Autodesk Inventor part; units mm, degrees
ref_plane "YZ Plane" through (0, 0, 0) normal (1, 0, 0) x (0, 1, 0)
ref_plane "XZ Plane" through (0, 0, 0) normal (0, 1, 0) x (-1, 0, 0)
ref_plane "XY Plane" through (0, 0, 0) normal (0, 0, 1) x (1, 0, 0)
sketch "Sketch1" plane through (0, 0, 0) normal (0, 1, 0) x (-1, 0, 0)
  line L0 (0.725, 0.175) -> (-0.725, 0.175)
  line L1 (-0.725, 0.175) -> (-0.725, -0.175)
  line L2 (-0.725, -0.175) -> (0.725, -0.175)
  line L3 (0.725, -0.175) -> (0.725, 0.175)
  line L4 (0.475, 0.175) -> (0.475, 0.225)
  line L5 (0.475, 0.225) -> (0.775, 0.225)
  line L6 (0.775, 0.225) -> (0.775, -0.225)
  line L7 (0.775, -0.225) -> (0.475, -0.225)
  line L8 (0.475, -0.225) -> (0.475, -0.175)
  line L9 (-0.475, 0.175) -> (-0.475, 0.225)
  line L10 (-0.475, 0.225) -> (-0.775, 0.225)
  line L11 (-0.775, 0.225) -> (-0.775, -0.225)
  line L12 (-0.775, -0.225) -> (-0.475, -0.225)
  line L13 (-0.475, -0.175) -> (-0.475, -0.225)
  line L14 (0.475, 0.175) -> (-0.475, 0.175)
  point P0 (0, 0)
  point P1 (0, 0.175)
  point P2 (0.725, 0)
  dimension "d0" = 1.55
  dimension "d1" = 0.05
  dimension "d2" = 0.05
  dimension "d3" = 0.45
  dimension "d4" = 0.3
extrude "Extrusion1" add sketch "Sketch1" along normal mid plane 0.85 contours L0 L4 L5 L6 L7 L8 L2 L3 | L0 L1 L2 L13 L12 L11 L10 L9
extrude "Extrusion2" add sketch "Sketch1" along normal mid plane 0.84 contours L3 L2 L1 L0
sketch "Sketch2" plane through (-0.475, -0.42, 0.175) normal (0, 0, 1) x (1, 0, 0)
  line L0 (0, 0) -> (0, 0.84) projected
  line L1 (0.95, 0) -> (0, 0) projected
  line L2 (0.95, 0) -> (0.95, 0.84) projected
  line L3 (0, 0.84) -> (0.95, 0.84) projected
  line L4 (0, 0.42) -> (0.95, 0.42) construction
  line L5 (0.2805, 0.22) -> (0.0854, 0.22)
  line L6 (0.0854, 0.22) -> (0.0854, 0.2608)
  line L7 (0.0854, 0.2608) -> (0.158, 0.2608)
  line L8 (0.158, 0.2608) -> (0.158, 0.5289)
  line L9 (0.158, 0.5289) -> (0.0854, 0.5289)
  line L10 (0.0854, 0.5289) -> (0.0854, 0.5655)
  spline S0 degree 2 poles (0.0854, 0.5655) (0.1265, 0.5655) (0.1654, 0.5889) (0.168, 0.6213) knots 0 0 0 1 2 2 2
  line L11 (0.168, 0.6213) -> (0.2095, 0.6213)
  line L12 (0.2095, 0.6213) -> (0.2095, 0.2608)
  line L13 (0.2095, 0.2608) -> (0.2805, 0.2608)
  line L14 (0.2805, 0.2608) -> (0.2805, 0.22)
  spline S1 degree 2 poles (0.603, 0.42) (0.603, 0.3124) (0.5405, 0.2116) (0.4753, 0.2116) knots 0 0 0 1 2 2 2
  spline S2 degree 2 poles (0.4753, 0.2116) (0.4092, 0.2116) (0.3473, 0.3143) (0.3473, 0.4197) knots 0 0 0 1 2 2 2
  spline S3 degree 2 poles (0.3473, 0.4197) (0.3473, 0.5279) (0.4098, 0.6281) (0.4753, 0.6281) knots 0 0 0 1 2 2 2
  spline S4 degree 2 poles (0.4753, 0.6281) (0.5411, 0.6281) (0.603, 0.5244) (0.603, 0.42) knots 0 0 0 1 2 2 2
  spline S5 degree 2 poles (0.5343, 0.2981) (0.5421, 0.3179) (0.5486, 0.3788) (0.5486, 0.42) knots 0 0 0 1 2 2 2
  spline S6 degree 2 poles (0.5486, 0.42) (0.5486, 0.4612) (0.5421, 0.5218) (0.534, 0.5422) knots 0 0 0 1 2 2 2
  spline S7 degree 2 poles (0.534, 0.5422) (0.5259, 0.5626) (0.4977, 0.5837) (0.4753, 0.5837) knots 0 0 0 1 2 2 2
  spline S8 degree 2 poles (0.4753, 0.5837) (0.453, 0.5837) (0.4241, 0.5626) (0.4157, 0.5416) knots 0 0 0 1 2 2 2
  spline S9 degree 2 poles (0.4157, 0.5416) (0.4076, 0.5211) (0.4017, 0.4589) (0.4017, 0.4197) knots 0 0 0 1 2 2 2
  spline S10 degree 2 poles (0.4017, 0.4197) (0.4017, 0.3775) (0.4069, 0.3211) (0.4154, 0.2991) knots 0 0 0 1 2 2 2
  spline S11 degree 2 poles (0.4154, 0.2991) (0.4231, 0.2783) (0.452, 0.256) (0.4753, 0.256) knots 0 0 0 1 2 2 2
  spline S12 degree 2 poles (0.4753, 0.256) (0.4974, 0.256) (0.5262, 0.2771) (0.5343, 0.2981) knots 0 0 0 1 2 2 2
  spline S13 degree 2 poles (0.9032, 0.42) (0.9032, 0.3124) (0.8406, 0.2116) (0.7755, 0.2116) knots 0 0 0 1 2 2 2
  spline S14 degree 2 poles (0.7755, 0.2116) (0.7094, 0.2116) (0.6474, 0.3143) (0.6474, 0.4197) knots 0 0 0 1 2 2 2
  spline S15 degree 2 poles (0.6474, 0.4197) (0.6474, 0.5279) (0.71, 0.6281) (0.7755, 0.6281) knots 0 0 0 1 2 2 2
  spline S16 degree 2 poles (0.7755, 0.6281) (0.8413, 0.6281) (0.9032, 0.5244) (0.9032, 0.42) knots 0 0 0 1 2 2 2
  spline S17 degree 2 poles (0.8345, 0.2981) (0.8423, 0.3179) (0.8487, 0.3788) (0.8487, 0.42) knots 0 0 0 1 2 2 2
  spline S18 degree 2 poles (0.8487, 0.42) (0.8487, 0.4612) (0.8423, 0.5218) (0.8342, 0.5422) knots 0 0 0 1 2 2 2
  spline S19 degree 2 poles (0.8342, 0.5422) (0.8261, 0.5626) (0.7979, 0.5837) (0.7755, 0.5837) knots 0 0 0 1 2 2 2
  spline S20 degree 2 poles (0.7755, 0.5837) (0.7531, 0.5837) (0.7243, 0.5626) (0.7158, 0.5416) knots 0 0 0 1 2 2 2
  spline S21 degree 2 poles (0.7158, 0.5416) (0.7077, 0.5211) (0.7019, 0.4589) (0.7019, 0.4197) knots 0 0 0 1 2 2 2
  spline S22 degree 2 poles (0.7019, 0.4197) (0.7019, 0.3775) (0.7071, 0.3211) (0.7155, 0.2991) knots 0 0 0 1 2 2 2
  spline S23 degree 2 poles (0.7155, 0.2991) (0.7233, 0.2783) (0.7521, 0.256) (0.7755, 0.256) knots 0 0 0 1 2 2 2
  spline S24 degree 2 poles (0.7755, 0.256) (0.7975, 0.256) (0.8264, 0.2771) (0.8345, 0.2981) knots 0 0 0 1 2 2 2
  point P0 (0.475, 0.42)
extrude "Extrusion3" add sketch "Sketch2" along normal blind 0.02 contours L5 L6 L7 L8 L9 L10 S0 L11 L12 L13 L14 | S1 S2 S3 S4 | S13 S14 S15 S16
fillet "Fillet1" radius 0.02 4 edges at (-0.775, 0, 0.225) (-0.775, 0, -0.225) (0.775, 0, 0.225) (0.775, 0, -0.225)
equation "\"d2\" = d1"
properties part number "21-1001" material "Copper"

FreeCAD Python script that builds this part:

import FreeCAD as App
import Part
import Sketcher

V = App.Vector
Q = App.Units.Quantity


def edges_at(feature, points):
    """Names of the edges that pass closest to the given points."""
    edges = feature.Shape.Edges
    near = lambda p: min(range(len(edges)), key=lambda i: edges[i].distToShape(Part.Vertex(*p))[0])
    return sorted({f"Edge{near(p) + 1}" for p in points})


def add_polygon(sketch, points):
    """Adds a closed chain of lines whose ends are joined by coincident constraints."""
    first, n = sketch.GeometryCount, len(points)
    for a, b in zip(points, points[1:] + points[:1]):
        sketch.addGeometry(Part.LineSegment(App.Vector(*a, 0), App.Vector(*b, 0)), False)
    for i in range(n):
        sketch.addConstraint(Sketcher.Constraint("Coincident", first + i, 2, first + (i + 1) % n, 1))

doc = App.newDocument("Part")
body = doc.addObject("PartDesign::Body", "Body")
body.AllowCompound = True

# Sketch on XZ plane
sketch1 = body.newObject("Sketcher::SketchObject", "Sketch")
sketch1.AttachmentSupport = (doc.getObject("XZ_Plane"), [""])
sketch1.MapMode = "FlatFace"
add_polygon(sketch1, [(-0.47, 0.17), (-0.72, 0.17), (-0.72, -0.17), (-0.47, -0.17), (-0.47, -0.23), (-0.78, -0.23), (-0.78, 0.23), (-0.47, 0.23)])  # lines 0-7
add_polygon(sketch1, [(0.72, 0.17), (0.47, 0.17), (0.47, 0.23), (0.78, 0.23), (0.78, -0.23), (0.47, -0.23), (0.47, -0.17), (0.72, -0.17)])  # lines 8-15
sketch1.addConstraint([
    Sketcher.Constraint("Horizontal", 0),
    Sketcher.Constraint("Vertical", 1),
    Sketcher.Constraint("Horizontal", 2),
    Sketcher.Constraint("Vertical", 3),
    Sketcher.Constraint("Horizontal", 4),
    Sketcher.Constraint("Vertical", 5),
    Sketcher.Constraint("Horizontal", 6),
    Sketcher.Constraint("Vertical", 7),
    Sketcher.Constraint("Horizontal", 8),
    Sketcher.Constraint("Vertical", 9),
    Sketcher.Constraint("Horizontal", 10),
    Sketcher.Constraint("Vertical", 11),
    Sketcher.Constraint("Horizontal", 12),
    Sketcher.Constraint("Vertical", 13),
    Sketcher.Constraint("Horizontal", 14),
    Sketcher.Constraint("Vertical", 15),
    Sketcher.Constraint("Symmetric", 2, 2, 8, 2, -1, 1),
    Sketcher.Constraint("Symmetric", 4, 2, 10, 2, -1, 1),
    Sketcher.Constraint("Symmetric", 6, 2, 12, 2, -1, 1),
    Sketcher.Constraint("Symmetric", 0, 2, 14, 2, -1, 1),
    Sketcher.Constraint("Symmetric", 7, 2, 8, 2, -2),
    Sketcher.Constraint("Horizontal", 6, 2, 9, 2),
    Sketcher.Constraint("DistanceX", 4, 2, 4, 1, Q("0.3 mm")),
    Sketcher.Constraint("DistanceY", 3, 2, 3, 1, Q("0.05 mm")),
    Sketcher.Constraint("DistanceY", 5, 1, 5, 2, Q("0.45 mm")),
    Sketcher.Constraint("DistanceX", 4, 2, 1, 2, Q("0.05 mm")),
    Sketcher.Constraint("DistanceX", 0, 2, 8, 2, Q("1.2 mm")),
])
pad1 = body.newObject("PartDesign::Pad", "Pad")
pad1.Profile = sketch1
pad1.Length = 0.85
pad1.Midplane = True

# Sketch on XZ plane
sketch2 = body.newObject("Sketcher::SketchObject", "Sketch001")
sketch2.AttachmentSupport = (doc.getObject("XZ_Plane"), [""])
sketch2.MapMode = "FlatFace"
add_polygon(sketch2, [(-0.72, -0.17), (-0.72, 0.17), (0.72, 0.17), (0.72, -0.17)])  # lines 0-3
sketch2.addConstraint([
    Sketcher.Constraint("Vertical", 0),
    Sketcher.Constraint("Horizontal", 1),
    Sketcher.Constraint("Vertical", 2),
    Sketcher.Constraint("Horizontal", 3),
    Sketcher.Constraint("Symmetric", 0, 2, 2, 2, -1, 1),
    Sketcher.Constraint("DistanceX", 1, 1, 1, 2, Q("1.45 mm")),
    Sketcher.Constraint("DistanceY", 0, 1, 0, 2, Q("0.35 mm")),
])
pad2 = body.newObject("PartDesign::Pad", "Pad001")
pad2.Profile = sketch2
pad2.Length = 0.84
pad2.Midplane = True

# Sketch on XY plane
sketch3 = body.newObject("Sketcher::SketchObject", "Sketch002")
sketch3.AttachmentSupport = (doc.getObject("XY_Plane"), [""])
sketch3.MapMode = "FlatFace"
sketch3.AttachmentOffset = App.Placement(V(0, 0, 0.175), App.Rotation())
sketch3.addGeometry([
    Part.LineSegment(V(-0.3896, -0.2, 0), V(-0.1945, -0.2, 0)),  # 0
    Part.LineSegment(V(-0.1945, -0.2, 0), V(-0.1945, -0.1592, 0)),  # 1
    Part.LineSegment(V(-0.1945, -0.1592, 0), V(-0.2655, -0.1592, 0)),  # 2
    Part.LineSegment(V(-0.2655, -0.1592, 0), V(-0.2655, 0.2013, 0)),  # 3
    Part.LineSegment(V(-0.2655, 0.2013, 0), V(-0.307, 0.2013, 0)),  # 4
    Part.BSplineCurve([V(-0.3896, 0.1455, 0), V(-0.3485, 0.1455, 0), V(-0.3096, 0.1689, 0), V(-0.307, 0.2013, 0)], [3, 1, 3], [0, 1, 2], False, 2, [1, 1, 1, 1], False),  # 5
    Part.LineSegment(V(-0.3896, 0.1455, 0), V(-0.3896, 0.1089, 0)),  # 6
    Part.LineSegment(V(-0.3896, 0.1089, 0), V(-0.317, 0.1089, 0)),  # 7
    Part.LineSegment(V(-0.317, 0.1089, 0), V(-0.317, -0.1592, 0)),  # 8
    Part.LineSegment(V(-0.317, -0.1592, 0), V(-0.3896, -0.1592, 0)),  # 9
    Part.LineSegment(V(-0.3896, -0.1592, 0), V(-0.3896, -0.2, 0)),  # 10
    Part.BSplineCurve([V(0.128, 0, 0), V(0.128, -0.1076, 0), V(0.0655, -0.2084, 0), V(0.0003, -0.2084, 0)], [3, 1, 3], [0, 1, 2], False, 2, [1, 1, 1, 1], False),  # 11
    Part.BSplineCurve([V(0.0003, 0.2081, 0), V(0.0661, 0.2081, 0), V(0.128, 0.1044, 0), V(0.128, 0, 0)], [3, 1, 3], [0, 1, 2], False, 2, [1, 1, 1, 1], False),  # 12
    Part.BSplineCurve([V(-0.1277, -0.0003, 0), V(-0.1277, 0.1079, 0), V(-0.0652, 0.2081, 0), V(0.0003, 0.2081, 0)], [3, 1, 3], [0, 1, 2], False, 2, [1, 1, 1, 1], False),  # 13
    Part.BSplineCurve([V(0.0003, -0.2084, 0), V(-0.0658, -0.2084, 0), V(-0.1277, -0.1057, 0), V(-0.1277, -0.0003, 0)], [3, 1, 3], [0, 1, 2], False, 2, [1, 1, 1, 1], False),  # 14
    Part.BSplineCurve([V(0.0593, -0.1219, 0), V(0.0671, -0.1021, 0), V(0.0736, -0.0412, 0), V(0.0736, 0, 0)], [3, 1, 3], [0, 1, 2], False, 2, [1, 1, 1, 1], False),  # 15
    Part.BSplineCurve([V(0.0003, -0.164, 0), V(0.0224, -0.164, 0), V(0.0512, -0.1429, 0), V(0.0593, -0.1219, 0)], [3, 1, 3], [0, 1, 2], False, 2, [1, 1, 1, 1], False),  # 16
    Part.BSplineCurve([V(-0.0596, -0.1209, 0), V(-0.0519, -0.1417, 0), V(-0.023, -0.164, 0), V(0.0003, -0.164, 0)], [3, 1, 3], [0, 1, 2], False, 2, [1, 1, 1, 1], False),  # 17
    Part.BSplineCurve([V(-0.0733, -0.0003, 0), V(-0.0733, -0.0425, 0), V(-0.0681, -0.0989, 0), V(-0.0596, -0.1209, 0)], [3, 1, 3], [0, 1, 2], False, 2, [1, 1, 1, 1], False),  # 18
    Part.BSplineCurve([V(-0.0593, 0.1216, 0), V(-0.0674, 0.1011, 0), V(-0.0733, 0.0389, 0), V(-0.0733, -0.0003, 0)], [3, 1, 3], [0, 1, 2], False, 2, [1, 1, 1, 1], False),  # 19
    Part.BSplineCurve([V(0.0003, 0.1637, 0), V(-0.022, 0.1637, 0), V(-0.0509, 0.1426, 0), V(-0.0593, 0.1216, 0)], [3, 1, 3], [0, 1, 2], False, 2, [1, 1, 1, 1], False),  # 20
    Part.BSplineCurve([V(0.059, 0.1222, 0), V(0.0509, 0.1426, 0), V(0.0227, 0.1637, 0), V(0.0003, 0.1637, 0)], [3, 1, 3], [0, 1, 2], False, 2, [1, 1, 1, 1], False),  # 21
    Part.BSplineCurve([V(0.0736, 0, 0), V(0.0736, 0.0412, 0), V(0.0671, 0.1018, 0), V(0.059, 0.1222, 0)], [3, 1, 3], [0, 1, 2], False, 2, [1, 1, 1, 1], False),  # 22
    Part.BSplineCurve([V(0.4282, 0, 0), V(0.4282, -0.1076, 0), V(0.3656, -0.2084, 0), V(0.3005, -0.2084, 0)], [3, 1, 3], [0, 1, 2], False, 2, [1, 1, 1, 1], False),  # 23
    Part.BSplineCurve([V(0.3005, 0.2081, 0), V(0.3663, 0.2081, 0), V(0.4282, 0.1044, 0), V(0.4282, 0, 0)], [3, 1, 3], [0, 1, 2], False, 2, [1, 1, 1, 1], False),  # 24
    Part.BSplineCurve([V(0.1724, -0.0003, 0), V(0.1724, 0.1079, 0), V(0.235, 0.2081, 0), V(0.3005, 0.2081, 0)], [3, 1, 3], [0, 1, 2], False, 2, [1, 1, 1, 1], False),  # 25
    Part.BSplineCurve([V(0.3005, -0.2084, 0), V(0.2344, -0.2084, 0), V(0.1724, -0.1057, 0), V(0.1724, -0.0003, 0)], [3, 1, 3], [0, 1, 2], False, 2, [1, 1, 1, 1], False),  # 26
    Part.BSplineCurve([V(0.3595, -0.1219, 0), V(0.3673, -0.1021, 0), V(0.3737, -0.0412, 0), V(0.3737, 0, 0)], [3, 1, 3], [0, 1, 2], False, 2, [1, 1, 1, 1], False),  # 27
    Part.BSplineCurve([V(0.3005, -0.164, 0), V(0.3225, -0.164, 0), V(0.3514, -0.1429, 0), V(0.3595, -0.1219, 0)], [3, 1, 3], [0, 1, 2], False, 2, [1, 1, 1, 1], False),  # 28
    Part.BSplineCurve([V(0.2405, -0.1209, 0), V(0.2483, -0.1417, 0), V(0.2771, -0.164, 0), V(0.3005, -0.164, 0)], [3, 1, 3], [0, 1, 2], False, 2, [1, 1, 1, 1], False),  # 29
    Part.BSplineCurve([V(0.2269, -0.0003, 0), V(0.2269, -0.0425, 0), V(0.2321, -0.0989, 0), V(0.2405, -0.1209, 0)], [3, 1, 3], [0, 1, 2], False, 2, [1, 1, 1, 1], False),  # 30
    Part.BSplineCurve([V(0.2408, 0.1216, 0), V(0.2327, 0.1011, 0), V(0.2269, 0.0389, 0), V(0.2269, -0.0003, 0)], [3, 1, 3], [0, 1, 2], False, 2, [1, 1, 1, 1], False),  # 31
    Part.BSplineCurve([V(0.3005, 0.1637, 0), V(0.2781, 0.1637, 0), V(0.2493, 0.1426, 0), V(0.2408, 0.1216, 0)], [3, 1, 3], [0, 1, 2], False, 2, [1, 1, 1, 1], False),  # 32
    Part.BSplineCurve([V(0.3592, 0.1222, 0), V(0.3511, 0.1426, 0), V(0.3229, 0.1637, 0), V(0.3005, 0.1637, 0)], [3, 1, 3], [0, 1, 2], False, 2, [1, 1, 1, 1], False),  # 33
    Part.BSplineCurve([V(0.3737, 0, 0), V(0.3737, 0.0412, 0), V(0.3673, 0.1018, 0), V(0.3592, 0.1222, 0)], [3, 1, 3], [0, 1, 2], False, 2, [1, 1, 1, 1], False),  # 34
], False)
sketch3.addConstraint([
    Sketcher.Constraint("Block", 5),
    Sketcher.Constraint("Block", 11),
    Sketcher.Constraint("Block", 12),
    Sketcher.Constraint("Block", 13),
    Sketcher.Constraint("Block", 14),
    Sketcher.Constraint("Block", 15),
    Sketcher.Constraint("Block", 16),
    Sketcher.Constraint("Block", 17),
    Sketcher.Constraint("Block", 18),
    Sketcher.Constraint("Block", 19),
    Sketcher.Constraint("Block", 20),
    Sketcher.Constraint("Block", 21),
    Sketcher.Constraint("Block", 22),
    Sketcher.Constraint("Block", 23),
    Sketcher.Constraint("Block", 24),
    Sketcher.Constraint("Block", 25),
    Sketcher.Constraint("Block", 26),
    Sketcher.Constraint("Block", 27),
    Sketcher.Constraint("Block", 28),
    Sketcher.Constraint("Block", 29),
    Sketcher.Constraint("Block", 30),
    Sketcher.Constraint("Block", 31),
    Sketcher.Constraint("Block", 32),
    Sketcher.Constraint("Block", 33),
    Sketcher.Constraint("Block", 34),
    Sketcher.Constraint("Coincident", 0, 2, 1, 1),
    Sketcher.Constraint("Coincident", 1, 2, 2, 1),
    Sketcher.Constraint("Coincident", 2, 2, 3, 1),
    Sketcher.Constraint("Coincident", 3, 2, 4, 1),
    Sketcher.Constraint("Coincident", 4, 2, 5, 2),
    Sketcher.Constraint("Coincident", 5, 1, 6, 1),
    Sketcher.Constraint("Coincident", 6, 2, 7, 1),
    Sketcher.Constraint("Coincident", 7, 2, 8, 1),
    Sketcher.Constraint("Coincident", 8, 2, 9, 1),
    Sketcher.Constraint("Coincident", 9, 2, 10, 1),
    Sketcher.Constraint("Coincident", 10, 2, 0, 1),
    Sketcher.Constraint("Horizontal", 0),
    Sketcher.Constraint("Vertical", 1),
    Sketcher.Constraint("Horizontal", 2),
    Sketcher.Constraint("Vertical", 3),
    Sketcher.Constraint("Horizontal", 4),
    Sketcher.Constraint("Vertical", 6),
    Sketcher.Constraint("Horizontal", 7),
    Sketcher.Constraint("Vertical", 8),
    Sketcher.Constraint("Horizontal", 9),
    Sketcher.Constraint("Vertical", 10),
    Sketcher.Constraint("Horizontal", 2, 2, 8, 2),
    Sketcher.Constraint("Vertical", 6, 2, 9, 2),
    Sketcher.Constraint("DistanceY", 0, 2, -1, 1, Q("0.2 mm")),
    Sketcher.Constraint("DistanceX", 0, 1, 0, 2, Q("0.195 mm")),
    Sketcher.Constraint("DistanceX", 2, 2, 2, 1, Q("0.071 mm")),
    Sketcher.Constraint("DistanceY", 8, 2, 8, 1, Q("0.268 mm")),
    Sketcher.Constraint("DistanceX", 7, 2, 4, 2, Q("0.01 mm")),
    Sketcher.Constraint("DistanceY", 1, 1, 1, 2, Q("0.0408 mm")),
])
pad3 = body.newObject("PartDesign::Pad", "Pad002")
pad3.Profile = sketch3
pad3.Length = 0.02
doc.recompute()

fillet = body.newObject("PartDesign::Fillet", "Fillet")
fillet.Base = (pad3, edges_at(pad3, [
    (-0.775, 0, 0.225),
    (-0.775, 0, -0.225),
    (0.775, 0, 0.225),
    (0.775, 0, -0.225),
]))
fillet.Radius = 0.02

doc.recompute()
